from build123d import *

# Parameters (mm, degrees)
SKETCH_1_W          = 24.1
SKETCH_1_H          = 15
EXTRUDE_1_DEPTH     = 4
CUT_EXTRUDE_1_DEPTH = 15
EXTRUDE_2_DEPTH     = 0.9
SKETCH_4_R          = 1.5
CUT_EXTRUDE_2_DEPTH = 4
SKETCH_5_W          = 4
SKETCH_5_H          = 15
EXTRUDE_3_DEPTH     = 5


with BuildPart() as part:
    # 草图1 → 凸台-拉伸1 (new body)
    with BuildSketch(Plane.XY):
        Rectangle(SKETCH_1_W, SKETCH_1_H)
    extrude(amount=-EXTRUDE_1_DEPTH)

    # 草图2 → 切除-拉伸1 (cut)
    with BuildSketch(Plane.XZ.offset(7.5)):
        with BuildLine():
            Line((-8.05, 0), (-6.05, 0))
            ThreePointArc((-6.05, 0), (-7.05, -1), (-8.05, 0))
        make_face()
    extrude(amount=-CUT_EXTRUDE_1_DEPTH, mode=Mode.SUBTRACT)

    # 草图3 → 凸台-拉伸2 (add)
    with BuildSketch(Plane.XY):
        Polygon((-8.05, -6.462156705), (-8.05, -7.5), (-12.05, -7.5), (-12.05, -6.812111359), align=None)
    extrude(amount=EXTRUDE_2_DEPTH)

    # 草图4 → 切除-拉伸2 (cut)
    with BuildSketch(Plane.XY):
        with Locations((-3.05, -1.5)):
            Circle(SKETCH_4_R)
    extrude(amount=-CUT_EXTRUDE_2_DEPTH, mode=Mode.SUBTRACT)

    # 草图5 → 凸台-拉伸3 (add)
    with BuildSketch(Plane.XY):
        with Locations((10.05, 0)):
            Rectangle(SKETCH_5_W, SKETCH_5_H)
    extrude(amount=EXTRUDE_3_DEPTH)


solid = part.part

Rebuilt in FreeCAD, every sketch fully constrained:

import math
import FreeCAD as App
import Part
import Sketcher

V = App.Vector
Q = App.Units.Quantity

doc = App.newDocument("Part")
body = doc.addObject("PartDesign::Body", "Body")

# Sketch on XY plane
sketch1 = body.newObject("Sketcher::SketchObject", "Sketch")
sketch1.AttachmentSupport = (doc.getObject("XY_Plane"), [""])
sketch1.MapMode = "FlatFace"
sketch1.addGeometry(Part.LineSegment(V(-12.05, 7.5, 0), V(-12.05, -7.5, 0)), False)
sketch1.addGeometry(Part.LineSegment(V(-12.05, -7.5, 0), V(12.05, -7.5, 0)), False)
sketch1.addGeometry(Part.LineSegment(V(12.05, -7.5, 0), V(12.05, 7.5, 0)), False)
sketch1.addGeometry(Part.LineSegment(V(12.05, 7.5, 0), V(-12.05, 7.5, 0)), False)
sketch1.addConstraint(Sketcher.Constraint("Coincident", 0, 2, 1, 1))
sketch1.addConstraint(Sketcher.Constraint("Coincident", 1, 2, 2, 1))
sketch1.addConstraint(Sketcher.Constraint("Coincident", 2, 2, 3, 1))
sketch1.addConstraint(Sketcher.Constraint("Coincident", 3, 2, 0, 1))
sketch1.addConstraint(Sketcher.Constraint("Vertical", 0))
sketch1.addConstraint(Sketcher.Constraint("Horizontal", 1))
sketch1.addConstraint(Sketcher.Constraint("Vertical", 2))
sketch1.addConstraint(Sketcher.Constraint("Horizontal", 3))
sketch1.addConstraint(Sketcher.Constraint("Symmetric", 0, 2, 2, 2, -1, 1))
sketch1.addConstraint(Sketcher.Constraint("DistanceY", 0, 2, 0, 1, 15.0))
sketch1.addConstraint(Sketcher.Constraint("DistanceX", 1, 1, 1, 2, 24.1))
pad1 = body.newObject("PartDesign::Pad", "Pad")
pad1.Profile = sketch1
pad1.Length = 4
pad1.Reversed = True

# Sketch on XZ plane
sketch2 = body.newObject("Sketcher::SketchObject", "Sketch001")
sketch2.AttachmentSupport = (doc.getObject("XZ_Plane"), [""])
sketch2.MapMode = "FlatFace"
sketch2.AttachmentOffset = App.Placement(V(0, 0, 7.5), App.Rotation())
sketch2.addGeometry(Part.LineSegment(V(-6.05, 0, 0), V(-8.05, 0, 0)), False)
sketch2.addGeometry(Part.ArcOfCircle(Part.Circle(V(-7.05, 0, 0), V(0, 0, 1), 1), math.radians(180), math.radians(360)), False)
sketch2.addConstraint(Sketcher.Constraint("Coincident", 0, 1, 1, 2))
sketch2.addConstraint(Sketcher.Constraint("Coincident", 1, 1, 0, 2))
sketch2.addConstraint(Sketcher.Constraint("Horizontal", 0))
sketch2.addConstraint(Sketcher.Constraint("PointOnObject", 1, 3, -1))
sketch2.addConstraint(Sketcher.Constraint("PointOnObject", 0, 1, -1))
sketch2.addConstraint(Sketcher.Constraint("Radius", 1, 1.0))
sketch2.addConstraint(Sketcher.Constraint("DistanceX", 1, 3, -1, 1, 7.05))
pocket1 = body.newObject("PartDesign::Pocket", "Pocket")
pocket1.Profile = sketch2
pocket1.Length = 15

# Sketch on XY plane
sketch3 = body.newObject("Sketcher::SketchObject", "Sketch002")
sketch3.AttachmentSupport = (doc.getObject("XY_Plane"), [""])
sketch3.MapMode = "FlatFace"
sketch3.addGeometry(Part.LineSegment(V(-8.05, -7.5, 0), V(-8.05, -6.462157, 0)), False)
sketch3.addGeometry(Part.LineSegment(V(-8.05, -6.462157, 0), V(-12.05, -6.812111, 0)), False)
sketch3.addGeometry(Part.LineSegment(V(-12.05, -6.812111, 0), V(-12.05, -7.5, 0)), False)
sketch3.addGeometry(Part.LineSegment(V(-12.05, -7.5, 0), V(-8.05, -7.5, 0)), False)
sketch3.addConstraint(Sketcher.Constraint("Coincident", 0, 2, 1, 1))
sketch3.addConstraint(Sketcher.Constraint("Coincident", 1, 2, 2, 1))
sketch3.addConstraint(Sketcher.Constraint("Coincident", 2, 2, 3, 1))
sketch3.addConstraint(Sketcher.Constraint("Coincident", 3, 2, 0, 1))
sketch3.addConstraint(Sketcher.Constraint("Vertical", 0))
sketch3.addConstraint(Sketcher.Constraint("Vertical", 2))
sketch3.addConstraint(Sketcher.Constraint("Horizontal", 3))
sketch3.addConstraint(Sketcher.Constraint("DistanceX", 3, 1, 3, 2, 4.0))
sketch3.addConstraint(Sketcher.Constraint("Angle", 1, Q("-175 deg")))
sketch3.addConstraint(Sketcher.Constraint("DistanceY", 2, 2, -1, 1, 7.5))
sketch3.addConstraint(Sketcher.Constraint("DistanceX", 0, 2, -1, 1, 8.05))
sketch3.addConstraint(Sketcher.Constraint("DistanceY", 2, 2, 2, 1, 0.687889))
pad2 = body.newObject("PartDesign::Pad", "Pad001")
pad2.Profile = sketch3
pad2.Length = 0.9

# Sketch on XY plane
sketch4 = body.newObject("Sketcher::SketchObject", "Sketch003")
sketch4.AttachmentSupport = (doc.getObject("XY_Plane"), [""])
sketch4.MapMode = "FlatFace"
sketch4.addGeometry(Part.Circle(V(-3.05, -1.5, 0), V(0, 0, 1), 1.5), False)
sketch4.addConstraint(Sketcher.Constraint("Diameter", 0, 3.0))
sketch4.addConstraint(Sketcher.Constraint("DistanceY", 0, 3, -1, 1, 1.5))
sketch4.addConstraint(Sketcher.Constraint("DistanceX", 0, 3, -1, 1, 3.05))
pocket2 = body.newObject("PartDesign::Pocket", "Pocket001")
pocket2.Profile = sketch4
pocket2.Length = 4

# Sketch on XY plane
sketch5 = body.newObject("Sketcher::SketchObject", "Sketch004")
sketch5.AttachmentSupport = (doc.getObject("XY_Plane"), [""])
sketch5.MapMode = "FlatFace"
sketch5.addGeometry(Part.LineSegment(V(8.05, 7.5, 0), V(8.05, -7.5, 0)), False)
sketch5.addGeometry(Part.LineSegment(V(8.05, -7.5, 0), V(12.05, -7.5, 0)), False)
sketch5.addGeometry(Part.LineSegment(V(12.05, -7.5, 0), V(12.05, 7.5, 0)), False)
sketch5.addGeometry(Part.LineSegment(V(12.05, 7.5, 0), V(8.05, 7.5, 0)), False)
sketch5.addConstraint(Sketcher.Constraint("Coincident", 0, 2, 1, 1))
sketch5.addConstraint(Sketcher.Constraint("Coincident", 1, 2, 2, 1))
sketch5.addConstraint(Sketcher.Constraint("Coincident", 2, 2, 3, 1))
sketch5.addConstraint(Sketcher.Constraint("Coincident", 3, 2, 0, 1))
sketch5.addConstraint(Sketcher.Constraint("Vertical", 0))
sketch5.addConstraint(Sketcher.Constraint("Horizontal", 1))
sketch5.addConstraint(Sketcher.Constraint("Vertical", 2))
sketch5.addConstraint(Sketcher.Constraint("Horizontal", 3))
sketch5.addConstraint(Sketcher.Constraint("DistanceX", 1, 1, 1, 2, 4.0))
sketch5.addConstraint(Sketcher.Constraint("DistanceY", 0, 2, 0, 1, 15.0))
sketch5.addConstraint(Sketcher.Constraint("DistanceY", 0, 2, -1, 1, 7.5))
sketch5.addConstraint(Sketcher.Constraint("DistanceX", -1, 1, 0, 2, 8.05))
pad3 = body.newObject("PartDesign::Pad", "Pad002")
pad3.Profile = sketch5
pad3.Length = 5

doc.recompute()
